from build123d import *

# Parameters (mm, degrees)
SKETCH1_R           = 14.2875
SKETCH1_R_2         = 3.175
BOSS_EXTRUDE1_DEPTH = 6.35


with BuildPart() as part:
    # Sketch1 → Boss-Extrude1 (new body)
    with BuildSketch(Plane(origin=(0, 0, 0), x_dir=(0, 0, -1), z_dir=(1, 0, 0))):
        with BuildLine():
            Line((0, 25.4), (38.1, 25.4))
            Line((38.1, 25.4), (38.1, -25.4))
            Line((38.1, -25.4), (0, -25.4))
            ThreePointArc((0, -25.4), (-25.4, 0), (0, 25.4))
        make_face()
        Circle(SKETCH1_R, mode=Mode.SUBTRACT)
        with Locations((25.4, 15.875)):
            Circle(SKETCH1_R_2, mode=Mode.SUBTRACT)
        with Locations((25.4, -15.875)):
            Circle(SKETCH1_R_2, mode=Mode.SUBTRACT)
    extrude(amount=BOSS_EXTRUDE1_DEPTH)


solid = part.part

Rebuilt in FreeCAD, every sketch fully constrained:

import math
import FreeCAD as App
import Part
import Sketcher

V = App.Vector
Q = App.Units.Quantity

doc = App.newDocument("Part")
params = doc.addObject("Spreadsheet::Sheet", "Params")
for row, (alias, value) in enumerate([
    ("sketch1_radius", "1 in"),
    ("sketch1_diameter", "0.25 in"),
    ("sketch1_diameter2", "1.125 in"),
    ("sketch1_height", "1.5 in"),
    ("pad1_length", "0.25 in"),
], start=1):
    params.set(f"A{row}", alias)
    params.set(f"B{row}", "=" + value)
    params.setAlias(f"B{row}", alias)

body = doc.addObject("PartDesign::Body", "Body")

sketch1 = body.newObject("Sketcher::SketchObject", "Sketch")
sketch1.AttachmentSupport = (doc.getObject("YZ_Plane"), [""])
sketch1.MapMode = "FlatFace"
sketch1.addGeometry([
    Part.LineSegment(V(25.4, -38.1, 0), V(25.4, 0, 0)),
    Part.ArcOfCircle(Part.Circle(V(0, 0, 0), V(0, 0, 1), 25.4), math.radians(0), math.radians(180)),
    Part.LineSegment(V(-25.4, 0, 0), V(-25.4, -38.1, 0)),
    Part.LineSegment(V(-25.4, -38.1, 0), V(25.4, -38.1, 0)),
    Part.Circle(V(-15.9, -25.4, 0), V(0, 0, 1), 3.2),
    Part.Circle(V(15.9, -25.4, 0), V(0, 0, 1), 3.2),
    Part.Circle(V(0, 0, 0), V(0, 0, 1), 14.3),
], False)
sketch1.addConstraint([
    Sketcher.Constraint("Tangent", 0, 2, 1, 1),
    Sketcher.Constraint("Tangent", 1, 2, 2, 1),
    Sketcher.Constraint("Coincident", 2, 2, 3, 1),
    Sketcher.Constraint("Coincident", 3, 2, 0, 1),
    Sketcher.Constraint("Vertical", 0),
    Sketcher.Constraint("Vertical", 2),
    Sketcher.Constraint("Horizontal", 3),
    Sketcher.Constraint("Coincident", 1, 3, -1, 1),
    Sketcher.Constraint("Coincident", 6, 3, -1, 1),
    Sketcher.Constraint("Equal", 4, 5),
    Sketcher.Constraint("Symmetric", 4, 3, 5, 3, -2),
    Sketcher.Constraint("Radius", 1, Q("1 in")),
    Sketcher.Constraint("Diameter", 4, Q("0.25 in")),
    Sketcher.Constraint("Diameter", 6, Q("1.125 in")),
    Sketcher.Constraint("DistanceY", 0, 1, 0, 2, Q("1.5 in")),
    Sketcher.Constraint("DistanceY", 4, 3, -1, 1, Q("1 in")),
    Sketcher.Constraint("DistanceX", 4, 3, 5, 3, Q("1.25 in")),
])
sketch1.setExpression("Constraints[11]", "Params.sketch1_radius")
sketch1.setExpression("Constraints[12]", "Params.sketch1_diameter")
sketch1.setExpression("Constraints[13]", "Params.sketch1_diameter2")
sketch1.setExpression("Constraints[14]", "Params.sketch1_height")
pad1 = body.newObject("PartDesign::Pad", "Pad")
pad1.Profile = sketch1
pad1.setExpression("Length", "Params.pad1_length")

doc.recompute()
